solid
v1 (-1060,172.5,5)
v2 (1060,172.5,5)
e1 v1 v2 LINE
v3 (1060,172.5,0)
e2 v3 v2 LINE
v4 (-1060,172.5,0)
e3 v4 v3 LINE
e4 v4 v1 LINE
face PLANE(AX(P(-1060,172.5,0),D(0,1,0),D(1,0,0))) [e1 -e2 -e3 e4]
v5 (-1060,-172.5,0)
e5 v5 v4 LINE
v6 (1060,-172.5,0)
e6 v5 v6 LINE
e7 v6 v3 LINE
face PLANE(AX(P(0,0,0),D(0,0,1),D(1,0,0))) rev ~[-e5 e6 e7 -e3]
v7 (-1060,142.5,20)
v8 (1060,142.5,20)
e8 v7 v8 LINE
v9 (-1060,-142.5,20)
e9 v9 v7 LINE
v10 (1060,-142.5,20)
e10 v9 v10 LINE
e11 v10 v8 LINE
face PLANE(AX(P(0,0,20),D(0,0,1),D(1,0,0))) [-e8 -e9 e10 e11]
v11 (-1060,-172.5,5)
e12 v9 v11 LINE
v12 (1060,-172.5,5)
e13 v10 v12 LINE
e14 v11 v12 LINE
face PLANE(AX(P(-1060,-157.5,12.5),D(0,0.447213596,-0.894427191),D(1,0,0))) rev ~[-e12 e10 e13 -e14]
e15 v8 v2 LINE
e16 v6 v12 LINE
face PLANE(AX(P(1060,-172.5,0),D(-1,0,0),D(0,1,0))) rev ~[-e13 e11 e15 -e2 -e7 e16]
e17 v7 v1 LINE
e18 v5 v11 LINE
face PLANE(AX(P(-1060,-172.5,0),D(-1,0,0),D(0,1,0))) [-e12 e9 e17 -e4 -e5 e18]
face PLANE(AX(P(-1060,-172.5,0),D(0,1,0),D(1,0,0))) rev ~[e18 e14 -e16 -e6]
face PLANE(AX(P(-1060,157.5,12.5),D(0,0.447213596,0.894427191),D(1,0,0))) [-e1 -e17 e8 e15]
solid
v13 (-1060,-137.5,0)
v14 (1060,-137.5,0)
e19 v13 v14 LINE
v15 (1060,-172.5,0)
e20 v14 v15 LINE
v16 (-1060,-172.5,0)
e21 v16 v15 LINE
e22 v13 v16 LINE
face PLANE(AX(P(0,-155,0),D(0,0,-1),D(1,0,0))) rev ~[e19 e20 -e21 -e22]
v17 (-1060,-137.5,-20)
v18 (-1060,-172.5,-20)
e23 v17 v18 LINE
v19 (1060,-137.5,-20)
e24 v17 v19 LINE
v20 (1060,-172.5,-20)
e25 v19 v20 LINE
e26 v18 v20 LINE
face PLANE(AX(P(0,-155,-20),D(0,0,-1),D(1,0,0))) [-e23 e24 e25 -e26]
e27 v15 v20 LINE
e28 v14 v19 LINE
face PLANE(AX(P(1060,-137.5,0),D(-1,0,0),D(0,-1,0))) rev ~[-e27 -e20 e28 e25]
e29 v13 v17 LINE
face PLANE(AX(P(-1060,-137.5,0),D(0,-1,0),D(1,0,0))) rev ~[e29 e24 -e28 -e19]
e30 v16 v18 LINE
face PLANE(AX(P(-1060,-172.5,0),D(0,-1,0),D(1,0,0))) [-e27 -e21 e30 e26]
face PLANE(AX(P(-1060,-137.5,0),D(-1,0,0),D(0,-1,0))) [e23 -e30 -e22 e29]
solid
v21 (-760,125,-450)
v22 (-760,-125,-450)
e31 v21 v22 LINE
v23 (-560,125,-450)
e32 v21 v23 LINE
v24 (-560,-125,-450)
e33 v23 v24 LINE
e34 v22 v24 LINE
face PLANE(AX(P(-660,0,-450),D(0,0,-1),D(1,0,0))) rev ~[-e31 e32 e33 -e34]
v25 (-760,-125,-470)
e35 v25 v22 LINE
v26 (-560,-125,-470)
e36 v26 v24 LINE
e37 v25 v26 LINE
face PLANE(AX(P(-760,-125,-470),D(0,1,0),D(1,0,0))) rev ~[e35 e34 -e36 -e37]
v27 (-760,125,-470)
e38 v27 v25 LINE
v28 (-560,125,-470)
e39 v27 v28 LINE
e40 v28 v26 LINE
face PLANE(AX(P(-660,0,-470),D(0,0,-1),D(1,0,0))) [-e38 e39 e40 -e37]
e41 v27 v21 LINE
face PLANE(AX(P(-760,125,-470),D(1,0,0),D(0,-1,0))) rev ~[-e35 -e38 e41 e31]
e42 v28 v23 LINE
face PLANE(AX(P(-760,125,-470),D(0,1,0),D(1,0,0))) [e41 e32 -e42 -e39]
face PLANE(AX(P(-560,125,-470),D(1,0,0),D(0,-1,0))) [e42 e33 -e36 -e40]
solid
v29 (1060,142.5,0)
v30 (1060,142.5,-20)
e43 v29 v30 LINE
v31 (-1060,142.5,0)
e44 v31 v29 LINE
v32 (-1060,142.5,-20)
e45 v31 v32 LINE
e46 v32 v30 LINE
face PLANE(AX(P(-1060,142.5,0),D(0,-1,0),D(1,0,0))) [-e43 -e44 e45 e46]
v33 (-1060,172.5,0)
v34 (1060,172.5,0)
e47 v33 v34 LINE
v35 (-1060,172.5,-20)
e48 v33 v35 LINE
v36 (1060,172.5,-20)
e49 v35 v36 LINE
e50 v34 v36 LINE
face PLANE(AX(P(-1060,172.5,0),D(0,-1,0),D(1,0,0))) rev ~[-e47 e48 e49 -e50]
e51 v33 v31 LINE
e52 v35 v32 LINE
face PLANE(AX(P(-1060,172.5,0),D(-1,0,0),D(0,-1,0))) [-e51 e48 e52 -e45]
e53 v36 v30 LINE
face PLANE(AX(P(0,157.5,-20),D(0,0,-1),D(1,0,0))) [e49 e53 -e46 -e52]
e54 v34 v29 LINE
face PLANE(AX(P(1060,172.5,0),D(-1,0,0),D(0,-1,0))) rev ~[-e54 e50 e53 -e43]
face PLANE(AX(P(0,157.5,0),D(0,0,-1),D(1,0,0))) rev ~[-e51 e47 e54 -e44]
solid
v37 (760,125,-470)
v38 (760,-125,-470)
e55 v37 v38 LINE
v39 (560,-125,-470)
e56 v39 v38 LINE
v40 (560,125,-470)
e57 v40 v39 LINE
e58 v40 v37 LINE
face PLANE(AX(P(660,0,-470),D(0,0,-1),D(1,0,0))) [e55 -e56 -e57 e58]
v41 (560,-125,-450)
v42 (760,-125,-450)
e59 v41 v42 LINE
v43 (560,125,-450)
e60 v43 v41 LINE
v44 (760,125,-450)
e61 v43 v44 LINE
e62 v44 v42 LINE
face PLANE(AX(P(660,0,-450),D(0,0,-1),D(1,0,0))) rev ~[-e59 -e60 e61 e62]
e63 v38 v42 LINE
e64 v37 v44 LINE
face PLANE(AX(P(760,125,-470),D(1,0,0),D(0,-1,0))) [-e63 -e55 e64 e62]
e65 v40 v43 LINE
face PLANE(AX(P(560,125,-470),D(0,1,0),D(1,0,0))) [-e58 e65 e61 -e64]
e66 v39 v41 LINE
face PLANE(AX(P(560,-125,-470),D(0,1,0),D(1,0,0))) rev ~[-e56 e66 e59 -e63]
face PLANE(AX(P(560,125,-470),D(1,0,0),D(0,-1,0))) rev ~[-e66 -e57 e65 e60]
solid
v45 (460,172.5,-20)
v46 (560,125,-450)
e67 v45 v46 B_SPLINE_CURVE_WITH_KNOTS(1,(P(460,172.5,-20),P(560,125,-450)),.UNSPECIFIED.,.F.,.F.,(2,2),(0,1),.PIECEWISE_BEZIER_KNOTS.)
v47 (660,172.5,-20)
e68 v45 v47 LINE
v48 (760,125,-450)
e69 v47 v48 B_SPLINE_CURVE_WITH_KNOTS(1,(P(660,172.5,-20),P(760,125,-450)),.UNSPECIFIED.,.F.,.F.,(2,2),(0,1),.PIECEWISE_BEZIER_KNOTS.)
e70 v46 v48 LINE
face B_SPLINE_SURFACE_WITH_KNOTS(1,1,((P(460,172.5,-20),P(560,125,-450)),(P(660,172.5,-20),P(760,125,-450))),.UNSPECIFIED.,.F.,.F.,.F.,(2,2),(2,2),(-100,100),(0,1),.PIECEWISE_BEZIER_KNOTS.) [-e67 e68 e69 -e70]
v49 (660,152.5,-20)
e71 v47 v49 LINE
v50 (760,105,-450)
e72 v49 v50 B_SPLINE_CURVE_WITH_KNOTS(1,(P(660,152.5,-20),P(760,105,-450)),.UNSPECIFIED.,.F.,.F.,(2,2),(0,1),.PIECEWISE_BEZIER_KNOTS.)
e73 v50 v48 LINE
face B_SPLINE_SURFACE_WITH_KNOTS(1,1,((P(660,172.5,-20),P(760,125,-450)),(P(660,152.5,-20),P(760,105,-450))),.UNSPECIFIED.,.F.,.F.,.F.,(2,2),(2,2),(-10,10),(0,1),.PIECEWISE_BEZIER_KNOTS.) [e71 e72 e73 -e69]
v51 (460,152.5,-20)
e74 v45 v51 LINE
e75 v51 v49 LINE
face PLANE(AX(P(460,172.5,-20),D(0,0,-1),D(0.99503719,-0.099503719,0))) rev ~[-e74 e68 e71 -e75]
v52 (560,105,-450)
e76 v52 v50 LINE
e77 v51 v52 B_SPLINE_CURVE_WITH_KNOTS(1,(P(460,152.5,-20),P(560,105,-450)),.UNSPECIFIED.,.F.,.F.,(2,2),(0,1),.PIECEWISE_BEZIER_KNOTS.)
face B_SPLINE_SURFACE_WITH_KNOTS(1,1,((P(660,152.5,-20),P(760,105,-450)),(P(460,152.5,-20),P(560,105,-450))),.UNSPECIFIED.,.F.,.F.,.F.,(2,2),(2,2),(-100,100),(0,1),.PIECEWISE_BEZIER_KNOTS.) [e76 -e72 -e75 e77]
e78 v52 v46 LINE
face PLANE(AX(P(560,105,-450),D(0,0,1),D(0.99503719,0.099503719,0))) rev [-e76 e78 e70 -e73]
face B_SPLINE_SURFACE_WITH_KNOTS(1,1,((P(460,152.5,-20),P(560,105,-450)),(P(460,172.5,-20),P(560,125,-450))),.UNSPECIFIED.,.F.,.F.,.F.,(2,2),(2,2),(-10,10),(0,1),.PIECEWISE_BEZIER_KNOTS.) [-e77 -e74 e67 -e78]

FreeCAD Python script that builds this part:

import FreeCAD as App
import Part
import Sketcher
from FreeCAD import Vector


def edges_at(feature, points):
    """Names of the edges that pass closest to the given points."""
    edges = feature.Shape.Edges
    near = lambda p: min(range(len(edges)), key=lambda i: edges[i].distToShape(Part.Vertex(*p))[0])
    return sorted({f"Edge{near(p) + 1}" for p in points})


def add_polygon(sketch, points):
    """Adds a closed chain of lines whose ends are joined by coincident constraints."""
    first, n = sketch.GeometryCount, len(points)
    for a, b in zip(points, points[1:] + points[:1]):
        sketch.addGeometry(Part.LineSegment(App.Vector(*a, 0), App.Vector(*b, 0)), False)
    for i in range(n):
        sketch.addConstraint(Sketcher.Constraint("Coincident", first + i, 2, first + (i + 1) % n, 1))

doc = App.newDocument("Part")
params = doc.addObject("Spreadsheet::Sheet", "Params")
for row, (alias, value) in enumerate([
    ("sketch1_width", "2120 mm"),
    ("sketch1_height", "345 mm"),
    ("pad1_length", "20 mm"),
    ("chamfer_size", "30 mm"),
    ("chamfer_size2", "15 mm"),
    ("sketch2_width", "2120 mm"),
    ("sketch2_height", "35 mm"),
    ("pad2_length", "20 mm"),
    ("sketch3_width", "2120 mm"),
    ("sketch3_height", "30 mm"),
    ("pad3_length", "20 mm"),
    ("sketch4_width", "200 mm"),
    ("sketch4_height", "250 mm"),
    ("pad4_length", "20 mm"),
    ("sketch5_width", "200 mm"),
    ("sketch5_height", "250 mm"),
    ("pad5_length", "20 mm"),
    ("sketch6_width", "200 mm"),
    ("sketch6_height", "20 mm"),
    ("sketch7_width", "200 mm"),
    ("sketch7_height", "20 mm"),
], start=1):
    params.set(f"A{row}", alias)
    params.set(f"B{row}", "=" + value)
    params.setAlias(f"B{row}", alias)

body = doc.addObject("PartDesign::Body", "Body")

sketch1 = body.newObject("Sketcher::SketchObject", "Sketch")
sketch1.AttachmentSupport = (doc.getObject("XY_Plane"), [""])
sketch1.MapMode = "FlatFace"
add_polygon(sketch1, [(-1060, 172), (-1060, -172), (1060, -172), (1060, 172)])
sketch1.addConstraint(Sketcher.Constraint("Vertical", 0))
sketch1.addConstraint(Sketcher.Constraint("Horizontal", 1))
sketch1.addConstraint(Sketcher.Constraint("Vertical", 2))
sketch1.addConstraint(Sketcher.Constraint("Horizontal", 3))
sketch1.addConstraint(Sketcher.Constraint("Symmetric", 0, 2, 2, 2, -1, 1))
sketch1.addConstraint(Sketcher.Constraint("DistanceX", 1, 1, 1, 2, 2120.0))
sketch1.addConstraint(Sketcher.Constraint("DistanceY", 0, 2, 0, 1, 345.0))
sketch1.setExpression("Constraints[9]", "Params.sketch1_width")
sketch1.setExpression("Constraints[10]", "Params.sketch1_height")
pad1 = body.newObject("PartDesign::Pad", "Pad")
pad1.Profile = sketch1
pad1.setExpression("Length", "Params.pad1_length")
doc.recompute()

chamfer = body.newObject("PartDesign::Chamfer", "Chamfer")
chamfer.Base = (pad1, edges_at(pad1, [(0, -172.5, 20), (0, 172.5, 20)]))
chamfer.ChamferType = "Two distances"
chamfer.setExpression("Size", "Params.chamfer_size")
chamfer.setExpression("Size2", "Params.chamfer_size2")
chamfer.FlipDirection = True
body2 = doc.addObject("PartDesign::Body", "Body001")

sketch2 = body2.newObject("Sketcher::SketchObject", "Sketch001")
sketch2.AttachmentSupport = (doc.getObject("XY_Plane001"), [""])
sketch2.MapMode = "FlatFace"
add_polygon(sketch2, [(-1060, -172), (-1060, -138), (1060, -138), (1060, -172)])
sketch2.addConstraint(Sketcher.Constraint("Vertical", 0))
sketch2.addConstraint(Sketcher.Constraint("Horizontal", 1))
sketch2.addConstraint(Sketcher.Constraint("Vertical", 2))
sketch2.addConstraint(Sketcher.Constraint("Horizontal", 3))
sketch2.addConstraint(Sketcher.Constraint("DistanceX", 1, 1, 1, 2, 2120.0))
sketch2.addConstraint(Sketcher.Constraint("DistanceY", 0, 1, 0, 2, 35.0))
sketch2.addConstraint(Sketcher.Constraint("DistanceX", 0, 2, -1, 1, 1060.0))
sketch2.addConstraint(Sketcher.Constraint("DistanceY", 0, 2, -1, 1, 137.5))
sketch2.setExpression("Constraints[8]", "Params.sketch2_width")
sketch2.setExpression("Constraints[9]", "Params.sketch2_height")
pad2 = body2.newObject("PartDesign::Pad", "Pad001")
pad2.Profile = sketch2
pad2.setExpression("Length", "Params.pad2_length")
pad2.Reversed = True
body3 = doc.addObject("PartDesign::Body", "Body002")

sketch3 = body3.newObject("Sketcher::SketchObject", "Sketch002")
sketch3.AttachmentSupport = (doc.getObject("XY_Plane002"), [""])
sketch3.MapMode = "FlatFace"
add_polygon(sketch3, [(-1060, 142), (-1060, 172), (1060, 172), (1060, 142)])
sketch3.addConstraint(Sketcher.Constraint("Vertical", 0))
sketch3.addConstraint(Sketcher.Constraint("Horizontal", 1))
sketch3.addConstraint(Sketcher.Constraint("Vertical", 2))
sketch3.addConstraint(Sketcher.Constraint("Horizontal", 3))
sketch3.addConstraint(Sketcher.Constraint("DistanceX", 1, 1, 1, 2, 2120.0))
sketch3.addConstraint(Sketcher.Constraint("DistanceY", 0, 1, 0, 2, 30.0))
sketch3.addConstraint(Sketcher.Constraint("DistanceX", 0, 2, -1, 1, 1060.0))
sketch3.addConstraint(Sketcher.Constraint("DistanceY", -1, 1, 0, 2, 172.5))
sketch3.setExpression("Constraints[8]", "Params.sketch3_width")
sketch3.setExpression("Constraints[9]", "Params.sketch3_height")
pad3 = body3.newObject("PartDesign::Pad", "Pad002")
pad3.Profile = sketch3
pad3.setExpression("Length", "Params.pad3_length")
pad3.Reversed = True
body4 = doc.addObject("PartDesign::Body", "Body003")

sketch4 = body4.newObject("Sketcher::SketchObject", "Sketch003")
sketch4.AttachmentSupport = (doc.getObject("XY_Plane003"), [""])
sketch4.MapMode = "FlatFace"
sketch4.AttachmentOffset = App.Placement(Vector(0, 0, -470), App.Rotation())
add_polygon(sketch4, [(560, -125), (560, 125), (760, 125), (760, -125)])
sketch4.addConstraint(Sketcher.Constraint("Vertical", 0))
sketch4.addConstraint(Sketcher.Constraint("Horizontal", 1))
sketch4.addConstraint(Sketcher.Constraint("Vertical", 2))
sketch4.addConstraint(Sketcher.Constraint("Horizontal", 3))
sketch4.addConstraint(Sketcher.Constraint("DistanceX", 1, 1, 1, 2, 200.0))
sketch4.addConstraint(Sketcher.Constraint("DistanceY", 0, 1, 0, 2, 250.0))
sketch4.addConstraint(Sketcher.Constraint("DistanceX", -1, 1, 0, 2, 560.0))
sketch4.addConstraint(Sketcher.Constraint("DistanceY", -1, 1, 0, 2, 125.0))
sketch4.setExpression("Constraints[8]", "Params.sketch4_width")
sketch4.setExpression("Constraints[9]", "Params.sketch4_height")
pad4 = body4.newObject("PartDesign::Pad", "Pad003")
pad4.Profile = sketch4
pad4.setExpression("Length", "Params.pad4_length")
body5 = doc.addObject("PartDesign::Body", "Body004")

sketch5 = body5.newObject("Sketcher::SketchObject", "Sketch004")
sketch5.AttachmentSupport = (doc.getObject("XY_Plane004"), [""])
sketch5.MapMode = "FlatFace"
sketch5.AttachmentOffset = App.Placement(Vector(0, 0, -470), App.Rotation())
add_polygon(sketch5, [(-760, -125), (-760, 125), (-560, 125), (-560, -125)])
sketch5.addConstraint(Sketcher.Constraint("Vertical", 0))
sketch5.addConstraint(Sketcher.Constraint("Horizontal", 1))
sketch5.addConstraint(Sketcher.Constraint("Vertical", 2))
sketch5.addConstraint(Sketcher.Constraint("Horizontal", 3))
sketch5.addConstraint(Sketcher.Constraint("DistanceX", 1, 1, 1, 2, 200.0))
sketch5.addConstraint(Sketcher.Constraint("DistanceY", 0, 1, 0, 2, 250.0))
sketch5.addConstraint(Sketcher.Constraint("DistanceX", 0, 2, -1, 1, 760.0))
sketch5.addConstraint(Sketcher.Constraint("DistanceY", -1, 1, 0, 2, 125.0))
sketch5.setExpression("Constraints[8]", "Params.sketch5_width")
sketch5.setExpression("Constraints[9]", "Params.sketch5_height")
pad5 = body5.newObject("PartDesign::Pad", "Pad004")
pad5.Profile = sketch5
pad5.setExpression("Length", "Params.pad5_length")
body6 = doc.addObject("PartDesign::Body", "Body005")

sketch6 = body6.newObject("Sketcher::SketchObject", "Sketch005")
sketch6.AttachmentSupport = (doc.getObject("XY_Plane005"), [""])
sketch6.MapMode = "FlatFace"
sketch6.AttachmentOffset = App.Placement(Vector(0, 0, -20), App.Rotation())
add_polygon(sketch6, [(460, 152), (460, 172), (660, 172), (660, 152)])
sketch6.addConstraint(Sketcher.Constraint("Vertical", 0))
sketch6.addConstraint(Sketcher.Constraint("Horizontal", 1))
sketch6.addConstraint(Sketcher.Constraint("Vertical", 2))
sketch6.addConstraint(Sketcher.Constraint("Horizontal", 3))
sketch6.addConstraint(Sketcher.Constraint("DistanceX", 1, 1, 1, 2, 200.0))
sketch6.addConstraint(Sketcher.Constraint("DistanceY", 0, 1, 0, 2, 20.0))
sketch6.addConstraint(Sketcher.Constraint("DistanceX", -1, 1, 0, 2, 460.0))
sketch6.addConstraint(Sketcher.Constraint("DistanceY", -1, 1, 0, 2, 172.5))
sketch6.setExpression("Constraints[8]", "Params.sketch6_width")
sketch6.setExpression("Constraints[9]", "Params.sketch6_height")

sketch7 = body6.newObject("Sketcher::SketchObject", "Sketch006")
sketch7.AttachmentSupport = (doc.getObject("XY_Plane005"), [""])
sketch7.MapMode = "FlatFace"
sketch7.AttachmentOffset = App.Placement(Vector(0, 0, -450), App.Rotation())
add_polygon(sketch7, [(560, 125), (560, 105), (760, 105), (760, 125)])
sketch7.addConstraint(Sketcher.Constraint("Vertical", 0))
sketch7.addConstraint(Sketcher.Constraint("Horizontal", 1))
sketch7.addConstraint(Sketcher.Constraint("Vertical", 2))
sketch7.addConstraint(Sketcher.Constraint("Horizontal", 3))
sketch7.addConstraint(Sketcher.Constraint("DistanceX", 1, 1, 1, 2, 200.0))
sketch7.addConstraint(Sketcher.Constraint("DistanceY", 0, 2, 0, 1, 20.0))
sketch7.addConstraint(Sketcher.Constraint("DistanceX", -1, 1, 0, 2, 560.0))
sketch7.addConstraint(Sketcher.Constraint("DistanceY", -1, 1, 0, 2, 105.0))
sketch7.setExpression("Constraints[8]", "Params.sketch7_width")
sketch7.setExpression("Constraints[9]", "Params.sketch7_height")

additiveloft = body6.newObject("PartDesign::AdditiveLoft", "AdditiveLoft")
additiveloft.Profile = sketch6
additiveloft.Sections = [sketch7]

doc.recompute()
